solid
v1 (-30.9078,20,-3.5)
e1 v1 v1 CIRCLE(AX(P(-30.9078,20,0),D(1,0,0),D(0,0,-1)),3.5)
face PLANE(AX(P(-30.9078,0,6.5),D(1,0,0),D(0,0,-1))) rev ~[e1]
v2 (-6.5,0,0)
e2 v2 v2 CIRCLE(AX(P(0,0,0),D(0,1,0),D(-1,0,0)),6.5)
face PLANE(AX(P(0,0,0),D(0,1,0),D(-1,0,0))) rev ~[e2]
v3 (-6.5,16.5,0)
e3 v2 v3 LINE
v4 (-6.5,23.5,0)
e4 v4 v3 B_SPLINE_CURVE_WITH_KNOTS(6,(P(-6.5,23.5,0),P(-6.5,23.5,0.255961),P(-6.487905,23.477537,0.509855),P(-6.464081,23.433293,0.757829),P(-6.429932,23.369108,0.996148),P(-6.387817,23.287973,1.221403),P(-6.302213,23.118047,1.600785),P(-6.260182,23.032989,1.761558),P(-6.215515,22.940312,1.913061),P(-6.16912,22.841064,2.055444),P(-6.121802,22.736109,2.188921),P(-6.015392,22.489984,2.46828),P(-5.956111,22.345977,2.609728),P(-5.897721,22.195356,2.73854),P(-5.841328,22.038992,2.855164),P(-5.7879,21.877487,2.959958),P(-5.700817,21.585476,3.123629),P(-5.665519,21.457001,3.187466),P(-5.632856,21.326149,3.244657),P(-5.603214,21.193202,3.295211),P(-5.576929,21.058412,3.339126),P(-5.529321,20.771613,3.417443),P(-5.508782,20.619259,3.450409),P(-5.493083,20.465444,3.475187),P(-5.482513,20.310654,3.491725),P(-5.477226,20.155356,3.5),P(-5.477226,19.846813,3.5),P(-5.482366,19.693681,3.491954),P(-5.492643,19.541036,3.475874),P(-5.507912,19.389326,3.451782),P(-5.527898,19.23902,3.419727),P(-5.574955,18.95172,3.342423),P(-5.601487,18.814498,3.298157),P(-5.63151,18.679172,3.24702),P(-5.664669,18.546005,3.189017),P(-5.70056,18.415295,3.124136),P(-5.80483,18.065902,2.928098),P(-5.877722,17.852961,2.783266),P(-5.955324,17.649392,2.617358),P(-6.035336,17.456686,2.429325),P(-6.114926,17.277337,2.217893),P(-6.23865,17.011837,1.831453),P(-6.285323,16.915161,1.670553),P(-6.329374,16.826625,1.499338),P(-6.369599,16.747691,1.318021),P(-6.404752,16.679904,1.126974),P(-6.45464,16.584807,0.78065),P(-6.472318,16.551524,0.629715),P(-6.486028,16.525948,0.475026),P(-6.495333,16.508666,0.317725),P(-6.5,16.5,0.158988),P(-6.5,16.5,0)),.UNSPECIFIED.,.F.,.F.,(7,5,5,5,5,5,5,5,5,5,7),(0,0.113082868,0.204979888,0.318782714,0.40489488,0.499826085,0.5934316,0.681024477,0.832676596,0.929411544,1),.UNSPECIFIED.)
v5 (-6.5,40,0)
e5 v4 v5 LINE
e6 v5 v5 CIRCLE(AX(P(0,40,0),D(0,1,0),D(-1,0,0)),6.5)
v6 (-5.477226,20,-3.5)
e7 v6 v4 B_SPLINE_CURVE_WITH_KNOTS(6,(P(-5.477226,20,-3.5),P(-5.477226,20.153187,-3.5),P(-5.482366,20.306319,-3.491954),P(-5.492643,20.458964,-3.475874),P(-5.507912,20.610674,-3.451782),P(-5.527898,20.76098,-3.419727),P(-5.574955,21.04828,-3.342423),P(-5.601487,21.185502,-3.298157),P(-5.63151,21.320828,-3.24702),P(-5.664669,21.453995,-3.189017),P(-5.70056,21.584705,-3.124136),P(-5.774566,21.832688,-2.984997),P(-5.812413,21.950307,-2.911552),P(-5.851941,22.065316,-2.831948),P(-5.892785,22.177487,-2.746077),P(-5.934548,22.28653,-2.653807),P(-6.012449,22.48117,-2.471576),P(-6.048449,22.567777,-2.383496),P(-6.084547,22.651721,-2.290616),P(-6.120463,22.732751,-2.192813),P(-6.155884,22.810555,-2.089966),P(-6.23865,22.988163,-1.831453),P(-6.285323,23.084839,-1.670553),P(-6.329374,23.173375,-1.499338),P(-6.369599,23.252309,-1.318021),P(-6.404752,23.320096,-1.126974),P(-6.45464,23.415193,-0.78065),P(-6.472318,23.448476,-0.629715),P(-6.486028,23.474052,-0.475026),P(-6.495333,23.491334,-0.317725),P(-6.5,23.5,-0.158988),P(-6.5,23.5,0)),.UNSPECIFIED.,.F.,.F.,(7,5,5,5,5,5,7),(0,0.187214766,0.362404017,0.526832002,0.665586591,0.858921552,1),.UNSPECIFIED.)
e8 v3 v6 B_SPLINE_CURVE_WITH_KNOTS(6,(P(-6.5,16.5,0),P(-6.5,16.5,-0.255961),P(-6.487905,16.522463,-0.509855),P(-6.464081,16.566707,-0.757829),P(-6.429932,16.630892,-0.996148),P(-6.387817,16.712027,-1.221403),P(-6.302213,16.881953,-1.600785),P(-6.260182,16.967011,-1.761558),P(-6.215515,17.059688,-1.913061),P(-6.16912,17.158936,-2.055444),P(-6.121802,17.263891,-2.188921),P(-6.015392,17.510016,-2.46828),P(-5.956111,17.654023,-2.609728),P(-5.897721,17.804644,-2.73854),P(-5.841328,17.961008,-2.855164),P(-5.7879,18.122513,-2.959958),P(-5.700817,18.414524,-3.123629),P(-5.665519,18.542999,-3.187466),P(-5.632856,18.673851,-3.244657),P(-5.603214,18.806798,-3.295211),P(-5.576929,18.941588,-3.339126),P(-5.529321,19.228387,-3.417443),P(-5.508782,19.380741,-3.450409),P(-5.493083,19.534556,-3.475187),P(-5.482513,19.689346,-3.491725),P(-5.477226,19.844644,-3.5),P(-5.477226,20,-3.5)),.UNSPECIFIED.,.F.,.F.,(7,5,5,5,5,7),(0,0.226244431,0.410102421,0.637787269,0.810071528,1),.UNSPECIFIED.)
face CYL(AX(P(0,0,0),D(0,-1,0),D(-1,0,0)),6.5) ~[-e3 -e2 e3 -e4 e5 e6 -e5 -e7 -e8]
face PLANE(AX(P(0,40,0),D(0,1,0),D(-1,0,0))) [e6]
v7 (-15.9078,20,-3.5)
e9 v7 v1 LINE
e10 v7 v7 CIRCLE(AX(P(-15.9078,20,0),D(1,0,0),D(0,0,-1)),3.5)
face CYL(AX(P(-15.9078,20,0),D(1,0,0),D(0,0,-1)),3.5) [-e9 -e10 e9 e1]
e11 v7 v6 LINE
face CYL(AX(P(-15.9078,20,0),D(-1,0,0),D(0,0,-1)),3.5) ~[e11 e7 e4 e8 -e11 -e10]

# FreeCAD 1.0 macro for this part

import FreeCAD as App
import Part
import Sketcher
Q = App.Units.Quantity

doc = App.newDocument("Part")
body = doc.addObject("PartDesign::Body", "Body")

# Sketch on XZ plane
sketch1 = body.newObject("Sketcher::SketchObject", "Sketch")
sketch1.AttachmentSupport = (doc.getObject("XZ_Plane"), [""])
sketch1.MapMode = "FlatFace"
sketch1.addGeometry(Part.Circle(App.Vector(0, 0, 0), App.Vector(0, 0, 1), 6.5), False)
sketch1.addConstraint([
    Sketcher.Constraint("Coincident", 0, 3, -1, 1),
    Sketcher.Constraint("Diameter", 0, Q("13 mm")),
])
pad1 = body.newObject("PartDesign::Pad", "Pad")
pad1.Profile = sketch1
pad1.Length = 40
pad1.Reversed = True

# Sketch on YZ plane
sketch2 = body.newObject("Sketcher::SketchObject", "Sketch001")
sketch2.AttachmentSupport = (doc.getObject("YZ_Plane"), [""])
sketch2.MapMode = "FlatFace"
sketch2.AttachmentOffset = App.Placement(App.Vector(0, 0, -15.9078), App.Rotation())
sketch2.addGeometry(Part.Circle(App.Vector(20, 0, 0), App.Vector(0, 0, 1), 3.5), False)
sketch2.addConstraint([
    Sketcher.Constraint("PointOnObject", 0, 3, -1),
    Sketcher.Constraint("Diameter", 0, Q("7 mm")),
    Sketcher.Constraint("DistanceX", -1, 1, 0, 3, Q("20 mm")),
])
pad2 = body.newObject("PartDesign::Pad", "Pad001")
pad2.Profile = sketch2
pad2.Length = 30
pad2.Midplane = True

doc.recompute()
